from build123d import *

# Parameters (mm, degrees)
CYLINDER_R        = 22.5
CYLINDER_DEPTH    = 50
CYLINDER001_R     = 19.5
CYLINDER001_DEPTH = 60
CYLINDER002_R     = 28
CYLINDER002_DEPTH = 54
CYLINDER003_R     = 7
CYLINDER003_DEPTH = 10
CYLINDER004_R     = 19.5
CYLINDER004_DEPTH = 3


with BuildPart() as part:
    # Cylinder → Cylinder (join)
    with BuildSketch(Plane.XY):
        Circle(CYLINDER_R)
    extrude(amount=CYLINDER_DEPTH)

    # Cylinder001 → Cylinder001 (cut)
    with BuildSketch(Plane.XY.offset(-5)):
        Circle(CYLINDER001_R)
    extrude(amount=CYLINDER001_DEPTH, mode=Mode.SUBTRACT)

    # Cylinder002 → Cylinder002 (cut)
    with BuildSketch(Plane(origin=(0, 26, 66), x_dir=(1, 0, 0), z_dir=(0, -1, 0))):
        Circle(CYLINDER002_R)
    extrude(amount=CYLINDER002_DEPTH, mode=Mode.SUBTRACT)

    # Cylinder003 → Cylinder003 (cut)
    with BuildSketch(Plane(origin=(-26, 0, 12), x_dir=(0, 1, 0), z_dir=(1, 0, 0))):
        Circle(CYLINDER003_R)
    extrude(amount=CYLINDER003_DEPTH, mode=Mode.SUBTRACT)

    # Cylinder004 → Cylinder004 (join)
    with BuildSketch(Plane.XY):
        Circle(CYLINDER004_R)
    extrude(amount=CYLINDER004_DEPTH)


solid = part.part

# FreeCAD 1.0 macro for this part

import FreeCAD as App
import Part
import Sketcher

V = App.Vector
Q = App.Units.Quantity

doc = App.newDocument("Part")
body = doc.addObject("PartDesign::Body", "Body")

# Sketch on XY plane
sketch1 = body.newObject("Sketcher::SketchObject", "Sketch")
sketch1.AttachmentSupport = (doc.getObject("XY_Plane"), [""])
sketch1.MapMode = "FlatFace"
sketch1.addGeometry(Part.Circle(V(0, 0, 0), V(0, 0, 1), 22), False)
sketch1.addConstraint([
    Sketcher.Constraint("Coincident", 0, 3, -1, 1),
    Sketcher.Constraint("Diameter", 0, Q("45 mm")),
])
pad1 = body.newObject("PartDesign::Pad", "Pad")
pad1.Profile = sketch1
pad1.Length = 50

# Sketch on XY plane
sketch2 = body.newObject("Sketcher::SketchObject", "Sketch001")
sketch2.AttachmentSupport = (doc.getObject("XY_Plane"), [""])
sketch2.MapMode = "FlatFace"
sketch2.AttachmentOffset = App.Placement(V(0, 0, -5), App.Rotation())
sketch2.addGeometry(Part.Circle(V(0, 0, 0), V(0, 0, 1), 20), False)
sketch2.addConstraint([
    Sketcher.Constraint("Coincident", 0, 3, -1, 1),
    Sketcher.Constraint("Diameter", 0, Q("39 mm")),
])
pocket1 = body.newObject("PartDesign::Pocket", "Pocket")
pocket1.Profile = sketch2
pocket1.Length = 60
pocket1.Reversed = True

# Sketch on XZ plane
sketch3 = body.newObject("Sketcher::SketchObject", "Sketch002")
sketch3.AttachmentSupport = (doc.getObject("XZ_Plane"), [""])
sketch3.MapMode = "FlatFace"
sketch3.AttachmentOffset = App.Placement(V(0, 0, -26), App.Rotation())
sketch3.addGeometry(Part.Circle(V(0, 66, 0), V(0, 0, 1), 28), False)
sketch3.addConstraint([
    Sketcher.Constraint("PointOnObject", 0, 3, -2),
    Sketcher.Constraint("Diameter", 0, Q("56 mm")),
    Sketcher.Constraint("DistanceY", -1, 1, 0, 3, Q("66 mm")),
])
pocket2 = body.newObject("PartDesign::Pocket", "Pocket001")
pocket2.Profile = sketch3
pocket2.Length = 54
pocket2.Reversed = True

# Sketch on YZ plane
sketch4 = body.newObject("Sketcher::SketchObject", "Sketch003")
sketch4.AttachmentSupport = (doc.getObject("YZ_Plane"), [""])
sketch4.MapMode = "FlatFace"
sketch4.AttachmentOffset = App.Placement(V(0, 0, -26), App.Rotation())
sketch4.addGeometry(Part.Circle(V(0, 12, 0), V(0, 0, 1), 7), False)
sketch4.addConstraint([
    Sketcher.Constraint("PointOnObject", 0, 3, -2),
    Sketcher.Constraint("Diameter", 0, Q("14 mm")),
    Sketcher.Constraint("DistanceY", -1, 1, 0, 3, Q("12 mm")),
])
pocket3 = body.newObject("PartDesign::Pocket", "Pocket002")
pocket3.Profile = sketch4
pocket3.Length = 10
pocket3.Reversed = True

# Sketch on XY plane
sketch5 = body.newObject("Sketcher::SketchObject", "Sketch004")
sketch5.AttachmentSupport = (doc.getObject("XY_Plane"), [""])
sketch5.MapMode = "FlatFace"
sketch5.addGeometry(Part.Circle(V(0, 0, 0), V(0, 0, 1), 20), False)
sketch5.addConstraint([
    Sketcher.Constraint("Coincident", 0, 3, -1, 1),
    Sketcher.Constraint("Diameter", 0, Q("39 mm")),
])
pad2 = body.newObject("PartDesign::Pad", "Pad001")
pad2.Profile = sketch5
pad2.Length = 3

doc.recompute()
